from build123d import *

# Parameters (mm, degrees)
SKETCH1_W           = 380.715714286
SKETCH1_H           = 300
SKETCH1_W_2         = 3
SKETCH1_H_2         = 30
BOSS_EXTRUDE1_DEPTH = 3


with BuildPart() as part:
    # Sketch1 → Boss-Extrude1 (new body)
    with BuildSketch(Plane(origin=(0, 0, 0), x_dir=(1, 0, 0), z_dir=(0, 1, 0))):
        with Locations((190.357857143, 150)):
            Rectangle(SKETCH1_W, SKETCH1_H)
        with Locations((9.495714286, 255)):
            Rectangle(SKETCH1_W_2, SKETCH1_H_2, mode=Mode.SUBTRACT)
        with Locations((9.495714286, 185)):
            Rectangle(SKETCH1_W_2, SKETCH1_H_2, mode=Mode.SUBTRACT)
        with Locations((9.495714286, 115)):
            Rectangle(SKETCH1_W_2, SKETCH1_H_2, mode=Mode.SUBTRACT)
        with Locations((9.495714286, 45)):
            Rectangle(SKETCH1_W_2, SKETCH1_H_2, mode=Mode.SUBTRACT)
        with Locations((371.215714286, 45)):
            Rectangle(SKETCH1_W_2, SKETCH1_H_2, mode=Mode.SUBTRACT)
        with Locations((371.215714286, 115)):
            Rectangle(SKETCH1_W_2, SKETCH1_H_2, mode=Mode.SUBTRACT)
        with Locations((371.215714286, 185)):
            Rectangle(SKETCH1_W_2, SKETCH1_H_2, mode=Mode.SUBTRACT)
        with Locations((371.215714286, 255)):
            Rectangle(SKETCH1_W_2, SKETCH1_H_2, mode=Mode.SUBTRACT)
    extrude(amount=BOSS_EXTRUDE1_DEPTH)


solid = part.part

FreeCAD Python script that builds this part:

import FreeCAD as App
import Part
import Sketcher
from FreeCAD import Vector


def add_polygon(sketch, points):
    """Adds a closed chain of lines whose ends are joined by coincident constraints."""
    first, n = sketch.GeometryCount, len(points)
    for a, b in zip(points, points[1:] + points[:1]):
        sketch.addGeometry(Part.LineSegment(App.Vector(*a, 0), App.Vector(*b, 0)), False)
    for i in range(n):
        sketch.addConstraint(Sketcher.Constraint("Coincident", first + i, 2, first + (i + 1) % n, 1))

doc = App.newDocument("Part")
body = doc.addObject("PartDesign::Body", "Body")

# Sketch on XZ plane
sketch1 = body.newObject("Sketcher::SketchObject", "Sketch")
sketch1.AttachmentSupport = (doc.getObject("XZ_Plane"), [""])
sketch1.MapMode = "FlatFace"
add_polygon(sketch1, [(0, -300), (0, 0), (380.7, 0), (380.7, -300)])  # lines 0-3
add_polygon(sketch1, [(11, -30), (8, -30), (8, -60), (11, -60)])  # lines 4-7
add_polygon(sketch1, [(11, -100), (8, -100), (8, -130), (11, -130)])  # lines 8-11
add_polygon(sketch1, [(372.7, -30), (369.7, -30), (369.7, -60), (372.7, -60)])  # lines 12-15
add_polygon(sketch1, [(372.7, -100), (369.7, -100), (369.7, -130), (372.7, -130)])  # lines 16-19
add_polygon(sketch1, [(11, -170), (8, -170), (8, -200), (11, -200)])  # lines 20-23
add_polygon(sketch1, [(11, -240), (8, -240), (8, -270), (11, -270)])  # lines 24-27
add_polygon(sketch1, [(372.7, -170), (369.7, -170), (369.7, -200), (372.7, -200)])  # lines 28-31
add_polygon(sketch1, [(372.7, -240), (369.7, -240), (369.7, -270), (372.7, -270)])  # lines 32-35
sketch1.addConstraint([
    Sketcher.Constraint("Vertical", 0),
    Sketcher.Constraint("Horizontal", 1),
    Sketcher.Constraint("Vertical", 2),
    Sketcher.Constraint("Horizontal", 3),
    Sketcher.Constraint("Horizontal", 4),
    Sketcher.Constraint("Vertical", 5),
    Sketcher.Constraint("Horizontal", 6),
    Sketcher.Constraint("Vertical", 7),
    Sketcher.Constraint("Horizontal", 8),
    Sketcher.Constraint("Vertical", 9),
    Sketcher.Constraint("Horizontal", 10),
    Sketcher.Constraint("Vertical", 11),
    Sketcher.Constraint("Horizontal", 12),
    Sketcher.Constraint("Vertical", 13),
    Sketcher.Constraint("Horizontal", 14),
    Sketcher.Constraint("Vertical", 15),
    Sketcher.Constraint("Horizontal", 16),
    Sketcher.Constraint("Vertical", 17),
    Sketcher.Constraint("Horizontal", 18),
    Sketcher.Constraint("Vertical", 19),
    Sketcher.Constraint("Horizontal", 20),
    Sketcher.Constraint("Vertical", 21),
    Sketcher.Constraint("Horizontal", 22),
    Sketcher.Constraint("Vertical", 23),
    Sketcher.Constraint("Horizontal", 24),
    Sketcher.Constraint("Vertical", 25),
    Sketcher.Constraint("Horizontal", 26),
    Sketcher.Constraint("Vertical", 27),
    Sketcher.Constraint("Horizontal", 28),
    Sketcher.Constraint("Vertical", 29),
    Sketcher.Constraint("Horizontal", 30),
    Sketcher.Constraint("Vertical", 31),
    Sketcher.Constraint("Horizontal", 32),
    Sketcher.Constraint("Vertical", 33),
    Sketcher.Constraint("Horizontal", 34),
    Sketcher.Constraint("Vertical", 35),
    Sketcher.Constraint("Coincident", 0, 2, -1, 1),
    Sketcher.Constraint("Horizontal", 7, 2, 12, 2),
    Sketcher.Constraint("Horizontal", 6, 2, 13, 2),
    Sketcher.Constraint("Horizontal", 11, 2, 16, 2),
    Sketcher.Constraint("Horizontal", 10, 2, 17, 2),
    Sketcher.Constraint("Horizontal", 23, 2, 28, 2),
    Sketcher.Constraint("Horizontal", 22, 2, 29, 2),
    Sketcher.Constraint("Horizontal", 27, 2, 32, 2),
    Sketcher.Constraint("Horizontal", 26, 2, 33, 2),
    Sketcher.Constraint("Vertical", 5, 2, 8, 2),
    Sketcher.Constraint("Vertical", 7, 2, 10, 2),
    Sketcher.Constraint("Vertical", 13, 2, 16, 2),
    Sketcher.Constraint("Vertical", 15, 2, 18, 2),
    Sketcher.Constraint("Vertical", 9, 2, 20, 2),
    Sketcher.Constraint("Vertical", 11, 2, 22, 2),
    Sketcher.Constraint("Vertical", 21, 2, 24, 2),
    Sketcher.Constraint("Vertical", 23, 2, 26, 2),
    Sketcher.Constraint("Vertical", 17, 2, 28, 2),
    Sketcher.Constraint("Vertical", 19, 2, 30, 2),
    Sketcher.Constraint("Vertical", 29, 2, 32, 2),
    Sketcher.Constraint("Vertical", 31, 2, 34, 2),
    Sketcher.Constraint("Equal", 10, 12),
    Sketcher.Constraint("Equal", 7, 9),
    Sketcher.Constraint("Equal", 19, 21),
    Sketcher.Constraint("Equal", 23, 25),
    Sketcher.Constraint("DistanceX", 4, 2, 4, 1, 3.0),
    Sketcher.Constraint("DistanceY", 0, 1, 0, 2, 300.0),
    Sketcher.Constraint("DistanceY", 5, 2, 5, 1, 30.0),
    Sketcher.Constraint("DistanceY", 4, 2, -1, 1, 30.0),
    Sketcher.Constraint("DistanceY", 8, 2, -1, 1, 100.0),
    Sketcher.Constraint("DistanceY", 20, 2, -1, 1, 170.0),
    Sketcher.Constraint("DistanceY", 24, 2, -1, 1, 240.0),
    Sketcher.Constraint("DistanceX", 12, 2, 1, 2, 11.0),
    Sketcher.Constraint("DistanceX", 4, 2, 1, 2, 372.72),
    Sketcher.Constraint("DistanceX", 1, 1, 1, 2, 380.715714),
])
pad1 = body.newObject("PartDesign::Pad", "Pad")
pad1.Profile = sketch1
pad1.Length = 3
pad1.Reversed = True

doc.recompute()
